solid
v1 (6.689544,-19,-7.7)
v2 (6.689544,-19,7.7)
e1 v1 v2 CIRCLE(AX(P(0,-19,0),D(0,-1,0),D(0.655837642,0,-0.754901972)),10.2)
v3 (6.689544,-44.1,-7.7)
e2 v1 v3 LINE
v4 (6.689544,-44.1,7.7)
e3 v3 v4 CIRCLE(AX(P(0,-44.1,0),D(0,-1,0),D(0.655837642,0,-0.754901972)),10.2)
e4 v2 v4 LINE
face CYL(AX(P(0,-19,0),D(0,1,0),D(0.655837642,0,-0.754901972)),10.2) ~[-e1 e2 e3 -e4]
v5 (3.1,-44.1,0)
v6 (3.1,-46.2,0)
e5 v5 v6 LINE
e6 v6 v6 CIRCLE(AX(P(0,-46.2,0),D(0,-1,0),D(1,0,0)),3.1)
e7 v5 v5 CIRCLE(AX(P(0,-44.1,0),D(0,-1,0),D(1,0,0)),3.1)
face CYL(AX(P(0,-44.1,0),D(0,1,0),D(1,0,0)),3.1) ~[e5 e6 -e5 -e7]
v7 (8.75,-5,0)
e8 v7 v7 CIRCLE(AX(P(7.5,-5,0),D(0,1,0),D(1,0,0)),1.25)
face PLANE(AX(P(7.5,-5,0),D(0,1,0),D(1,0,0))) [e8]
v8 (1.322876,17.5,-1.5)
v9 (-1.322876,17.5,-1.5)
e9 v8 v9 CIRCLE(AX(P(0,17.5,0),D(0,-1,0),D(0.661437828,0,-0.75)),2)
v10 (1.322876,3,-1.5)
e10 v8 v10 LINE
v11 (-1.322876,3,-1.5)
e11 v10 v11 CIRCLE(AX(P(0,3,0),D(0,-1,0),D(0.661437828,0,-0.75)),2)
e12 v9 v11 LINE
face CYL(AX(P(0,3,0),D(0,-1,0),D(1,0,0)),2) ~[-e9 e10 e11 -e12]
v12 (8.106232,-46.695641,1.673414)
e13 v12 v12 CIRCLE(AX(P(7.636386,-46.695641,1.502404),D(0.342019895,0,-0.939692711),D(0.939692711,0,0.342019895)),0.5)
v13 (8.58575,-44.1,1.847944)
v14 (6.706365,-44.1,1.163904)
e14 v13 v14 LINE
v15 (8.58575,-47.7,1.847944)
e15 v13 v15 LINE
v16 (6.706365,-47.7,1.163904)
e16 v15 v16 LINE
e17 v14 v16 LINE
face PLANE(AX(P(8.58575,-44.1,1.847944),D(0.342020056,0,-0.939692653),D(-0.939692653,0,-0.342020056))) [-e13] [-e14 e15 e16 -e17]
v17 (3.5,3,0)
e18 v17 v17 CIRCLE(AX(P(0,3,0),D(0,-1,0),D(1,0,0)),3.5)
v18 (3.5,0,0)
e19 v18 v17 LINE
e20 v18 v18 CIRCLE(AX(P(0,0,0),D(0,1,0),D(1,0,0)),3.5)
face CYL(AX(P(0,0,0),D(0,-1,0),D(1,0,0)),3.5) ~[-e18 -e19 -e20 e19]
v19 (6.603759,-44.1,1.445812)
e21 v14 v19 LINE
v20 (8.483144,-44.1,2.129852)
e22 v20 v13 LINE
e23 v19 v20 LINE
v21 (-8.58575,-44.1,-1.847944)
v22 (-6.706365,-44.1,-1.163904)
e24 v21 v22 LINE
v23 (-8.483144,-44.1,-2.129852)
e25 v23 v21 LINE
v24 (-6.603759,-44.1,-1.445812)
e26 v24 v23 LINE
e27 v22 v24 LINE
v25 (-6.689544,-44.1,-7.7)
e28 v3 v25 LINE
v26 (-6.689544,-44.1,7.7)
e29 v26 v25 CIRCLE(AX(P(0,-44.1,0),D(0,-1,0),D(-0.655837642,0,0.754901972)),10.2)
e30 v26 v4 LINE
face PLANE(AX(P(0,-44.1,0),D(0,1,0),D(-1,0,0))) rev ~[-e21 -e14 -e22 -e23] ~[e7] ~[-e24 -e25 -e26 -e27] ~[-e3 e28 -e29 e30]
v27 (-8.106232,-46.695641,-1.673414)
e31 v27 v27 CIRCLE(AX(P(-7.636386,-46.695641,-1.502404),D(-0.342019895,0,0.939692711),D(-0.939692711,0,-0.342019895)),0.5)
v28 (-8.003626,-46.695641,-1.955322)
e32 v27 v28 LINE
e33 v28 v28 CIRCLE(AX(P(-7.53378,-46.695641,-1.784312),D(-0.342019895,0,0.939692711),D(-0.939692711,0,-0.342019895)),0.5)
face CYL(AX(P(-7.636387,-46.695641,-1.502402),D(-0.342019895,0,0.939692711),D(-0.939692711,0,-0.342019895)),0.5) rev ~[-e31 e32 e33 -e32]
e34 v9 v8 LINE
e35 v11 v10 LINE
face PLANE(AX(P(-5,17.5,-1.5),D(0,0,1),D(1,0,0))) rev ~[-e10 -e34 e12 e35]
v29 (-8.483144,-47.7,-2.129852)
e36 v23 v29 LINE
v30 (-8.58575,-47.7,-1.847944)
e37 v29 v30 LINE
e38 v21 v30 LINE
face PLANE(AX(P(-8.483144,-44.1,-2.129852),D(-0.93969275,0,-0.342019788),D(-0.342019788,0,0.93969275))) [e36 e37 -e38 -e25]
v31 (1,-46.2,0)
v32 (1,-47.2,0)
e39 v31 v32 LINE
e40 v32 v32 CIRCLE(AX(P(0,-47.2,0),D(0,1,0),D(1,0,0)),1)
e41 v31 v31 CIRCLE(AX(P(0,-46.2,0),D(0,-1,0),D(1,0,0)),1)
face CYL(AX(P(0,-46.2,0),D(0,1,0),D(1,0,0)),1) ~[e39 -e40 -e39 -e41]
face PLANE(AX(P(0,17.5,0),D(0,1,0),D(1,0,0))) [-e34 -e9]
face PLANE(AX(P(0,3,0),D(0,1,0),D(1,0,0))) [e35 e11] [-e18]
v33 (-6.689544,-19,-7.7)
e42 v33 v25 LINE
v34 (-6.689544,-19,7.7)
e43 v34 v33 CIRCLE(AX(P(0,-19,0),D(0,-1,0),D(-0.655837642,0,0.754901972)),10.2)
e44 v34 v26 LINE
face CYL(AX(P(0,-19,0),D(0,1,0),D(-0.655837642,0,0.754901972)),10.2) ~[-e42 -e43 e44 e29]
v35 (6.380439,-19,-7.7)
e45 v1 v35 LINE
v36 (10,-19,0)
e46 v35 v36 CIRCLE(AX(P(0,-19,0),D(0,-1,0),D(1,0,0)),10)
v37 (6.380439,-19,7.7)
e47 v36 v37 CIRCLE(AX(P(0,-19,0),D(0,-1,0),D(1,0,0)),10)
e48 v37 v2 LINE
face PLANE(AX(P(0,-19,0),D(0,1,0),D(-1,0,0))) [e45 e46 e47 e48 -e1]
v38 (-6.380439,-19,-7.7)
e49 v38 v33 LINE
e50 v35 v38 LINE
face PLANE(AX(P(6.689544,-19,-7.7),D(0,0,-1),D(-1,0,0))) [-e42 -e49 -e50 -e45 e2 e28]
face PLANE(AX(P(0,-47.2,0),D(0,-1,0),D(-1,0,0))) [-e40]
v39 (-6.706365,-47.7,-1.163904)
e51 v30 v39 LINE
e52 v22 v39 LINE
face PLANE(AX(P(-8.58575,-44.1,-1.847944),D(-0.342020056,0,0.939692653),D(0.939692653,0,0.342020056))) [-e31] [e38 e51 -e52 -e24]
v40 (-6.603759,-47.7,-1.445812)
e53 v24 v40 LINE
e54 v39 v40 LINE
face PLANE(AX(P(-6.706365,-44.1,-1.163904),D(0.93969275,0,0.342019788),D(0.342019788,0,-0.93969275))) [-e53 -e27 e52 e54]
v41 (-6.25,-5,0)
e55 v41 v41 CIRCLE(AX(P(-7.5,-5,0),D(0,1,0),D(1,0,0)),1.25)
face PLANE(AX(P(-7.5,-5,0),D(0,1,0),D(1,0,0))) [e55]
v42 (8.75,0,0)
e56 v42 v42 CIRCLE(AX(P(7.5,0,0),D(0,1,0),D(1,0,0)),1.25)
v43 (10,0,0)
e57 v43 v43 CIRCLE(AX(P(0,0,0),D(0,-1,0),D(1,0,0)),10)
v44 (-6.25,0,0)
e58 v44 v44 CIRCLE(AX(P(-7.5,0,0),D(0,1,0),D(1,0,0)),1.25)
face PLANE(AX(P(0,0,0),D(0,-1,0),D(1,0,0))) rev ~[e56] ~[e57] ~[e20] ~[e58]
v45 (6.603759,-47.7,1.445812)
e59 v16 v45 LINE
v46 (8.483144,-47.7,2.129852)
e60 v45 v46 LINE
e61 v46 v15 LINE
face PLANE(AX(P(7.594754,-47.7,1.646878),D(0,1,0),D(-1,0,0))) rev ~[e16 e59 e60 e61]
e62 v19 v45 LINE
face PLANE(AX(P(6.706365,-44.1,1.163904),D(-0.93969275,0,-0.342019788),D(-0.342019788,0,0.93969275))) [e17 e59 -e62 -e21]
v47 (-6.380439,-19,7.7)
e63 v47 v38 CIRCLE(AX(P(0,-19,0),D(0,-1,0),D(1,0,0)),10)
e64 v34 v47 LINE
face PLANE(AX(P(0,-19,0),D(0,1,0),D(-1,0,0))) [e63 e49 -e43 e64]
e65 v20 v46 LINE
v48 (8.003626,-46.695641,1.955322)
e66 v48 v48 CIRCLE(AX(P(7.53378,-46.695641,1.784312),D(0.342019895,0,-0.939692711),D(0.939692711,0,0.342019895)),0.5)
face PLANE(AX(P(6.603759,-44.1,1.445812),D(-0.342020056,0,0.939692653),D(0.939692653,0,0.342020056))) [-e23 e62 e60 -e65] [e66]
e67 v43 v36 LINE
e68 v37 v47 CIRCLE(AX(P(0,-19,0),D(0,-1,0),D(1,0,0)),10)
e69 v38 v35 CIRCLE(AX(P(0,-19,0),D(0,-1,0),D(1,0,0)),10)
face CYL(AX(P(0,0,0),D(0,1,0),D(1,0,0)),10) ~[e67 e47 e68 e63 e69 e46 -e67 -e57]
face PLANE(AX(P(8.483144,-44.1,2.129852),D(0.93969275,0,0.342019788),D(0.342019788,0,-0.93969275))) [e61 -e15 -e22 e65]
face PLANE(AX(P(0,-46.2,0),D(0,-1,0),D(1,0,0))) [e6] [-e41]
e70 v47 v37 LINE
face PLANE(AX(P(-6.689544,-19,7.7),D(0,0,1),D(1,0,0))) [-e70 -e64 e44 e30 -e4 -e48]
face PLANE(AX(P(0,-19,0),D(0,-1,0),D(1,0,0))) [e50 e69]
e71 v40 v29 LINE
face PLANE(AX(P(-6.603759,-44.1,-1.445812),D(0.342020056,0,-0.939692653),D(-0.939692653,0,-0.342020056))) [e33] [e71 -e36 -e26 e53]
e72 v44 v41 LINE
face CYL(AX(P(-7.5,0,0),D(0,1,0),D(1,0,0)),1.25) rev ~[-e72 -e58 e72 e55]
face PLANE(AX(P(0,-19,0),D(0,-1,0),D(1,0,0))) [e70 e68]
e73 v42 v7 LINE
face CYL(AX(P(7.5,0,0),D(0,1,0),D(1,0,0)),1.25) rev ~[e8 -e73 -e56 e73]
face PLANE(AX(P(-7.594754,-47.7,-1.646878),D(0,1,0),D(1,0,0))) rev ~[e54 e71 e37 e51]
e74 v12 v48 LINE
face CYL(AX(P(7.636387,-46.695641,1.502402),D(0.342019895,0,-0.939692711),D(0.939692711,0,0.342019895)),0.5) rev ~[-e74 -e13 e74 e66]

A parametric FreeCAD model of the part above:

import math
import FreeCAD as App
import Part
import Sketcher

V = App.Vector
Q = App.Units.Quantity

doc = App.newDocument("Part")
body = doc.addObject("PartDesign::Body", "Body")

# Sketch on XZ plane
sketch1 = body.newObject("Sketcher::SketchObject", "Sketch")
sketch1.AttachmentSupport = (doc.getObject("XZ_Plane"), [""])
sketch1.MapMode = "FlatFace"
sketch1.addGeometry(Part.Circle(V(0, 0, 0), V(0, 0, 1), 10), False)
sketch1.addConstraint([
    Sketcher.Constraint("Coincident", 0, 3, -1, 1),
    Sketcher.Constraint("Diameter", 0, 20.0),
])
pad1 = body.newObject("PartDesign::Pad", "Pad")
pad1.Profile = sketch1
pad1.Length = 19

# Sketch on XZ plane
sketch2 = body.newObject("Sketcher::SketchObject", "Sketch001")
sketch2.AttachmentSupport = (doc.getObject("XZ_Plane"), [""])
sketch2.MapMode = "FlatFace"
sketch2.addGeometry(Part.Circle(V(0, 0, 0), V(0, 0, 1), 3.5), False)
sketch2.addConstraint([
    Sketcher.Constraint("Coincident", 0, 3, -1, 1),
    Sketcher.Constraint("Diameter", 0, 7.0),
])
pad2 = body.newObject("PartDesign::Pad", "Pad001")
pad2.Profile = sketch2
pad2.Length = 3
pad2.Reversed = True

# Sketch on XZ plane
sketch3 = body.newObject("Sketcher::SketchObject", "Sketch002")
sketch3.AttachmentSupport = (doc.getObject("XZ_Plane"), [""])
sketch3.MapMode = "FlatFace"
sketch3.AttachmentOffset = App.Placement(V(0, 0, -3), App.Rotation())
sketch3.addGeometry(Part.Circle(V(0, 0, 0), V(0, 0, 1), 2), False)
sketch3.addConstraint([
    Sketcher.Constraint("Coincident", 0, 3, -1, 1),
    Sketcher.Constraint("Diameter", 0, 4.0),
])
pad3 = body.newObject("PartDesign::Pad", "Pad002")
pad3.Profile = sketch3
pad3.Length = 14.5
pad3.Reversed = True

# Sketch on XZ plane
sketch4 = body.newObject("Sketcher::SketchObject", "Sketch003")
sketch4.AttachmentSupport = (doc.getObject("XZ_Plane"), [""])
sketch4.MapMode = "FlatFace"
sketch4.AttachmentOffset = App.Placement(V(0, 0, -17.5), App.Rotation())
sketch4.addGeometry([
    Part.LineSegment(V(-5, -6, 0), V(-5, -2, 0)),
    Part.LineSegment(V(-5, -2, 0), V(5, -2, 0)),
    Part.LineSegment(V(5, -2, 0), V(5, -6, 0)),
    Part.LineSegment(V(5, -6, 0), V(-5, -6, 0)),
], False)
sketch4.addConstraint([
    Sketcher.Constraint("Coincident", 0, 2, 1, 1),
    Sketcher.Constraint("Coincident", 1, 2, 2, 1),
    Sketcher.Constraint("Coincident", 2, 2, 3, 1),
    Sketcher.Constraint("Coincident", 3, 2, 0, 1),
    Sketcher.Constraint("Vertical", 0),
    Sketcher.Constraint("Horizontal", 1),
    Sketcher.Constraint("Vertical", 2),
    Sketcher.Constraint("Horizontal", 3),
    Sketcher.Constraint("DistanceX", 1, 1, 1, 2, 10.0),
    Sketcher.Constraint("DistanceY", 0, 1, 0, 2, 5.0),
    Sketcher.Constraint("DistanceX", 0, 2, -1, 1, 5.0),
    Sketcher.Constraint("DistanceY", 0, 2, -1, 1, 1.5),
])
pocket1 = body.newObject("PartDesign::Pocket", "Pocket")
pocket1.Profile = sketch4
pocket1.Length = 14.5
pocket1.Reversed = True

# Sketch on XZ plane
sketch5 = body.newObject("Sketcher::SketchObject", "Sketch004")
sketch5.AttachmentSupport = (doc.getObject("XZ_Plane"), [""])
sketch5.MapMode = "FlatFace"
sketch5.AttachmentOffset = App.Placement(V(0, 0, 19), App.Rotation())
sketch5.addGeometry([
    Part.LineSegment(V(7, 8, 0), V(-7, 8, 0)),
    Part.ArcOfCircle(Part.Circle(V(0, 0, 0), V(0, 0, 1), 10), math.radians(131), math.radians(229)),
    Part.LineSegment(V(-7, -8, 0), V(7, -8, 0)),
    Part.ArcOfCircle(Part.Circle(V(0, 0, 0), V(0, 0, 1), 10), math.radians(-49), math.radians(49)),
], False)
sketch5.addConstraint([
    Sketcher.Constraint("Coincident", 0, 2, 1, 1),
    Sketcher.Constraint("Coincident", 1, 2, 2, 1),
    Sketcher.Constraint("Coincident", 2, 2, 3, 1),
    Sketcher.Constraint("Coincident", 3, 2, 0, 1),
    Sketcher.Constraint("Horizontal", 0),
    Sketcher.Constraint("Horizontal", 2),
    Sketcher.Constraint("Coincident", 1, 3, -1, 1),
    Sketcher.Constraint("Coincident", 3, 3, -1, 1),
    Sketcher.Constraint("Equal", 1, 3),
    Sketcher.Constraint("Vertical", 0, 2, 1, 2),
    Sketcher.Constraint("Radius", 1, 10.2),
    Sketcher.Constraint("DistanceY", -1, 1, 0, 2, 7.7),
])
pad4 = body.newObject("PartDesign::Pad", "Pad003")
pad4.Profile = sketch5
pad4.Length = 25.1

# Sketch on XZ plane
sketch6 = body.newObject("Sketcher::SketchObject", "Sketch005")
sketch6.AttachmentSupport = (doc.getObject("XZ_Plane"), [""])
sketch6.MapMode = "FlatFace"
sketch6.AttachmentOffset = App.Placement(V(0, 0, 44.1), App.Rotation())
sketch6.addGeometry(Part.Circle(V(0, 0, 0), V(0, 0, 1), 3.1), False)
sketch6.addConstraint([
    Sketcher.Constraint("Coincident", 0, 3, -1, 1),
    Sketcher.Constraint("Diameter", 0, 6.2),
])
pad5 = body.newObject("PartDesign::Pad", "Pad004")
pad5.Profile = sketch6
pad5.Length = 2.1

# Sketch on XZ plane
sketch7 = body.newObject("Sketcher::SketchObject", "Sketch006")
sketch7.AttachmentSupport = (doc.getObject("XZ_Plane"), [""])
sketch7.MapMode = "FlatFace"
sketch7.AttachmentOffset = App.Placement(V(0, 0, 46.2), App.Rotation())
sketch7.addGeometry(Part.Circle(V(0, 0, 0), V(0, 0, 1), 1), False)
sketch7.addConstraint([
    Sketcher.Constraint("Coincident", 0, 3, -1, 1),
    Sketcher.Constraint("Diameter", 0, 2.0),
])
pad6 = body.newObject("PartDesign::Pad", "Pad005")
pad6.Profile = sketch7
pad6.Length = 6

# Sketch on XZ plane
sketch8 = body.newObject("Sketcher::SketchObject", "Sketch007")
sketch8.AttachmentSupport = (doc.getObject("XZ_Plane"), [""])
sketch8.MapMode = "FlatFace"
sketch8.AttachmentOffset = App.Placement(V(0, 0, 44.1), App.Rotation())
sketch8.addGeometry([
    Part.LineSegment(V(8.48, 2.13, 0), V(6.6, 1.45, 0)),
    Part.LineSegment(V(6.6, 1.45, 0), V(6.71, 1.16, 0)),
    Part.LineSegment(V(6.71, 1.16, 0), V(8.59, 1.85, 0)),
    Part.LineSegment(V(8.59, 1.85, 0), V(8.48, 2.13, 0)),
], False)
sketch8.addConstraint([
    Sketcher.Constraint("Coincident", 0, 2, 1, 1),
    Sketcher.Constraint("Coincident", 1, 2, 2, 1),
    Sketcher.Constraint("Coincident", 2, 2, 3, 1),
    Sketcher.Constraint("Coincident", 3, 2, 0, 1),
    Sketcher.Constraint("Perpendicular", 0, 1),
    Sketcher.Constraint("Perpendicular", 1, 2),
    Sketcher.Constraint("Perpendicular", 2, 3),
    Sketcher.Constraint("Angle", 0, Q("-160.000005 deg")),
    Sketcher.Constraint("Distance", 0, 2.0),
    Sketcher.Constraint("Distance", 1, 0.3),
    Sketcher.Constraint("DistanceX", -1, 1, 0, 2, 6.603759),
    Sketcher.Constraint("DistanceY", -1, 1, 0, 2, 1.445812),
])
pad7 = body.newObject("PartDesign::Pad", "Pad006")
pad7.Profile = sketch8
pad7.Length = 3.6

# Sketch on an angled plane
sketch9 = body.newObject("Sketcher::SketchObject", "Sketch008")
sketch9.Placement = App.Placement(V(0.410424, 0, -1.127631), App.Rotation(V(0.939692711, 0, 0.342019895), V(0, -1, 0), V(0.342019895, 0, -0.939692711), "ZXY"))
sketch9.addGeometry(Part.Circle(V(7.7, 46.7, 0), V(0, 0, 1), 0.5), False)
sketch9.addConstraint([
    Sketcher.Constraint("Diameter", 0, 1.0),
    Sketcher.Constraint("DistanceY", -1, 1, 0, 3, 46.695641),
    Sketcher.Constraint("DistanceX", -1, 1, 0, 3, 7.689708),
])
pocket2 = body.newObject("PartDesign::Pocket", "Pocket001")
pocket2.Profile = sketch9
pocket2.Length = 5
doc.recompute()

polarpattern = body.newObject("PartDesign::PolarPattern", "PolarPattern")
polarpattern.Originals = [pad7]
polarpattern.Axis = (doc.getObject("Y_Axis"), [""])
polarpattern.Angle = 360
polarpattern.Occurrences = 2
body.Tip = polarpattern
doc.recompute()

polarpattern2 = body.newObject("PartDesign::PolarPattern", "PolarPattern001")
polarpattern2.Originals = [pocket2]
polarpattern2.Axis = (doc.getObject("Y_Axis"), [""])
polarpattern2.Angle = 360
polarpattern2.Occurrences = 2
body.Tip = polarpattern2

# Sketch on XZ plane
sketch10 = body.newObject("Sketcher::SketchObject", "Sketch009")
sketch10.AttachmentSupport = (doc.getObject("XZ_Plane"), [""])
sketch10.MapMode = "FlatFace"
sketch10.AttachmentOffset = App.Placement(V(0, 0, 52.2), App.Rotation())
sketch10.addGeometry(Part.Circle(V(0, 0, 0), V(0, 0, 1), 1), False)
sketch10.addConstraint([
    Sketcher.Constraint("Coincident", 0, 3, -1, 1),
    Sketcher.Constraint("Diameter", 0, 2.0),
])
pocket3 = body.newObject("PartDesign::Pocket", "Pocket002")
pocket3.Profile = sketch10
pocket3.Length = 5

# Sketch on XZ plane
sketch11 = body.newObject("Sketcher::SketchObject", "Sketch010")
sketch11.AttachmentSupport = (doc.getObject("XZ_Plane"), [""])
sketch11.MapMode = "FlatFace"
sketch11.addGeometry([
    Part.Circle(V(-7.5, 0, 0), V(0, 0, 1), 1.2),
    Part.Circle(V(7.5, 0, 0), V(0, 0, 1), 1.2),
], False)
sketch11.addConstraint([
    Sketcher.Constraint("Equal", 0, 1),
    Sketcher.Constraint("Symmetric", 0, 3, 1, 3, -1, 1),
    Sketcher.Constraint("PointOnObject", 0, 3, -1),
    Sketcher.Constraint("Diameter", 0, 2.5),
    Sketcher.Constraint("DistanceX", 0, 3, 1, 3, 15.0),
])
pocket4 = body.newObject("PartDesign::Pocket", "Pocket003")
pocket4.Profile = sketch11
pocket4.Length = 5
pocket4.Reversed = True

doc.recompute()
